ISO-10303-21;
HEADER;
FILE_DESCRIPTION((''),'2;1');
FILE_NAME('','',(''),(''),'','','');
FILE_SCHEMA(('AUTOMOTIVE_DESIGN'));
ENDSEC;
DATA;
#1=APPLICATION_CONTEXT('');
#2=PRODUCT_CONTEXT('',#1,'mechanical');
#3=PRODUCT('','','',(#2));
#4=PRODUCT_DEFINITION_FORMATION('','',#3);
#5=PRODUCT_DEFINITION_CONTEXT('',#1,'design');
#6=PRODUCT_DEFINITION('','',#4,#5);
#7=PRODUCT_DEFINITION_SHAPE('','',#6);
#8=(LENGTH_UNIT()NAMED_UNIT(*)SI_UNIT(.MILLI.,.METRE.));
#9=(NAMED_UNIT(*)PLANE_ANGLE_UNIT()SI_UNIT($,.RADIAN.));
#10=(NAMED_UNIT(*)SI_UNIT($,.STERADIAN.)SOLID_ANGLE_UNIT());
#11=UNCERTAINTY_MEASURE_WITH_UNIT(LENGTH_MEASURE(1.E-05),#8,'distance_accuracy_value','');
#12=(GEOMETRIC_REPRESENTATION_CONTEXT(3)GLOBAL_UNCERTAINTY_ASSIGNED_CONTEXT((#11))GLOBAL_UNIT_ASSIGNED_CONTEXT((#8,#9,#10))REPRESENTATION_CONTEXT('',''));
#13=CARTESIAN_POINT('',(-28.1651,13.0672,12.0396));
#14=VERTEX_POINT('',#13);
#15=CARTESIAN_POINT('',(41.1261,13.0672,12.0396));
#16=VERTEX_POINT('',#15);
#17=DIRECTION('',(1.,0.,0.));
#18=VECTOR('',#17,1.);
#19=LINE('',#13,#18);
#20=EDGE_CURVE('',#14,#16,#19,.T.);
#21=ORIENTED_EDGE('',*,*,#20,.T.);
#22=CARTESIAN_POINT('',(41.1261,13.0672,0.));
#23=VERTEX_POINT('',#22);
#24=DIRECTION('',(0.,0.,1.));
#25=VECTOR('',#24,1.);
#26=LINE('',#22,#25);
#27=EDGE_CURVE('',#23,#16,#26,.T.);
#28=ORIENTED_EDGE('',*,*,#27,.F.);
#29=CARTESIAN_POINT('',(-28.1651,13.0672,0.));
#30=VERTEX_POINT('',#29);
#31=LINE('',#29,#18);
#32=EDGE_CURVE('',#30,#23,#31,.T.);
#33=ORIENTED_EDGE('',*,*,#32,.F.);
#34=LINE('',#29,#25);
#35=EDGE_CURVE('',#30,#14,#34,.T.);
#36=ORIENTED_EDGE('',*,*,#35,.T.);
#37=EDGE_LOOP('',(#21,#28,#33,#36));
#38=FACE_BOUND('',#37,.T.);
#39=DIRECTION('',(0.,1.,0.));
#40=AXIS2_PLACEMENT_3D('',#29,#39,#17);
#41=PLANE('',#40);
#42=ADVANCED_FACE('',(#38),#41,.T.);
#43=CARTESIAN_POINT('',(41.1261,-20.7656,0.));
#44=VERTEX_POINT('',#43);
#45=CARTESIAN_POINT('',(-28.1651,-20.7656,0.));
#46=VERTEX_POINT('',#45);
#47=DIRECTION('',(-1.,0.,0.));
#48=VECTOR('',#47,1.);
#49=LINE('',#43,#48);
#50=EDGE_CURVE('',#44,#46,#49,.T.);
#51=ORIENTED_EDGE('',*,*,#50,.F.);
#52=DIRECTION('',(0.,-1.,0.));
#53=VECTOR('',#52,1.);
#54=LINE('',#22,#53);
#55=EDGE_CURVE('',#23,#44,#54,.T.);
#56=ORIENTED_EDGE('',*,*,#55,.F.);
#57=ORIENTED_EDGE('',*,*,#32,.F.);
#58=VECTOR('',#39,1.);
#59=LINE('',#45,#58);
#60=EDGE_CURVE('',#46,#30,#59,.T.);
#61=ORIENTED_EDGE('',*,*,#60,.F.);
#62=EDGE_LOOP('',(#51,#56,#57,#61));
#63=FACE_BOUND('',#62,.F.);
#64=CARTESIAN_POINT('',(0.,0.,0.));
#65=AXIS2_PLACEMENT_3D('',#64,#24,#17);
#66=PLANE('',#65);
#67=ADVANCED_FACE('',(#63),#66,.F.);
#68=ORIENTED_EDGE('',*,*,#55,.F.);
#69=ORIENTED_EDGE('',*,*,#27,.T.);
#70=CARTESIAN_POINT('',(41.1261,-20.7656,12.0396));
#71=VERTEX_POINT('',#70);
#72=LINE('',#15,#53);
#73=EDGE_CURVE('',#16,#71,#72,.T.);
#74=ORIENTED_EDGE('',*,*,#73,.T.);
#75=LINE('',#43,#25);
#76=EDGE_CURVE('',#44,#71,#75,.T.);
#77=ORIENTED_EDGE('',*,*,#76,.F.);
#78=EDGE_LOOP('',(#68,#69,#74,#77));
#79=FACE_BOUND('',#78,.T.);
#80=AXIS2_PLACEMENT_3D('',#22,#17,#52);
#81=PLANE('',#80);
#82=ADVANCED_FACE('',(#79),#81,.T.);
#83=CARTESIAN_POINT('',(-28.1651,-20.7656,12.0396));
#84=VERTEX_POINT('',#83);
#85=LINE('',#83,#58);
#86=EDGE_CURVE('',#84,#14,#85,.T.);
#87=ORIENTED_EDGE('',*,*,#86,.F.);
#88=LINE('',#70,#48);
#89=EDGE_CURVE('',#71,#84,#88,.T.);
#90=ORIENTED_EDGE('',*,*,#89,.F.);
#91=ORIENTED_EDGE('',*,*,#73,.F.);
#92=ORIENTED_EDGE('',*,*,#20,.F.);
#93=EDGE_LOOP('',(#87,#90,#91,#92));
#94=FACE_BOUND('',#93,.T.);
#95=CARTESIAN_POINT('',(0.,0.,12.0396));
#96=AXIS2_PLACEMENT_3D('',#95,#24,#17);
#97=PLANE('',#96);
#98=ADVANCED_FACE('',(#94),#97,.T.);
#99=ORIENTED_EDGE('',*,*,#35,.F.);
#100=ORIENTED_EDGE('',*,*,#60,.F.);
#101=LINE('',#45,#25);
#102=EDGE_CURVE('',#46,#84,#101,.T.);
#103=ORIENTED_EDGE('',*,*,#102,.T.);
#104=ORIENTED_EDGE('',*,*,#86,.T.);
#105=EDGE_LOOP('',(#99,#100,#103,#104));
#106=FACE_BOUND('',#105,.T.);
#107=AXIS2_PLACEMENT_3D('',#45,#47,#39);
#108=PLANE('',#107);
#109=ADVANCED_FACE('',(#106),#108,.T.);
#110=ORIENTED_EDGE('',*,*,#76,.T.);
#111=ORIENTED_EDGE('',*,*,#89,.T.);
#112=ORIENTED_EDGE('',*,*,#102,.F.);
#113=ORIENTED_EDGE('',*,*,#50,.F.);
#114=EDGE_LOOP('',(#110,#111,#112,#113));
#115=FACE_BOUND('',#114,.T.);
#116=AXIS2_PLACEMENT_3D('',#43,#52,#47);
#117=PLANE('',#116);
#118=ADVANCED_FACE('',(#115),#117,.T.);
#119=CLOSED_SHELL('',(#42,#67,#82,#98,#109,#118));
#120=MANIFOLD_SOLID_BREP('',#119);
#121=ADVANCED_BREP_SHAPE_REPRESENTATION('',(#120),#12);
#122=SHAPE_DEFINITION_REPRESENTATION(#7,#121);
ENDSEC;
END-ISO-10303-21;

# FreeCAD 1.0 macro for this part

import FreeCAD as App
import Part
import Sketcher
from FreeCAD import Vector
Q = App.Units.Quantity

doc = App.newDocument("Part")
body = doc.addObject("PartDesign::Body", "Body")

# Sketch on XY plane
sketch1 = body.newObject("Sketcher::SketchObject", "Sketch")
sketch1.AttachmentSupport = (doc.getObject("XY_Plane"), [""])
sketch1.MapMode = "FlatFace"
sketch1.addGeometry(Part.LineSegment(Vector(41.1261, 13.0672, 0), Vector(-28.1651, 13.0672, 0)), False)
sketch1.addGeometry(Part.LineSegment(Vector(-28.1651, 13.0672, 0), Vector(-28.1651, -20.7656, 0)), False)
sketch1.addGeometry(Part.LineSegment(Vector(-28.1651, -20.7656, 0), Vector(41.1261, -20.7656, 0)), False)
sketch1.addGeometry(Part.LineSegment(Vector(41.1261, -20.7656, 0), Vector(41.1261, 13.0672, 0)), False)
sketch1.addConstraint(Sketcher.Constraint("Coincident", 0, 2, 1, 1))
sketch1.addConstraint(Sketcher.Constraint("Coincident", 1, 2, 2, 1))
sketch1.addConstraint(Sketcher.Constraint("Coincident", 2, 2, 3, 1))
sketch1.addConstraint(Sketcher.Constraint("Coincident", 3, 2, 0, 1))
sketch1.addConstraint(Sketcher.Constraint("Horizontal", 0))
sketch1.addConstraint(Sketcher.Constraint("Vertical", 1))
sketch1.addConstraint(Sketcher.Constraint("Horizontal", 2))
sketch1.addConstraint(Sketcher.Constraint("Vertical", 3))
sketch1.addConstraint(Sketcher.Constraint("DistanceX", 0, 2, 0, 1, Q("2.728 in")))
sketch1.addConstraint(Sketcher.Constraint("DistanceY", 1, 2, 1, 1, Q("1.332 in")))
sketch1.addConstraint(Sketcher.Constraint("DistanceX", 0, 2, -1, 1, Q("28.165 mm")))
sketch1.addConstraint(Sketcher.Constraint("DistanceY", -1, 1, 0, 2, Q("13.0672 mm")))
pad1 = body.newObject("PartDesign::Pad", "Pad")
pad1.Profile = sketch1
pad1.Length = Q("0.474 in")

doc.recompute()
